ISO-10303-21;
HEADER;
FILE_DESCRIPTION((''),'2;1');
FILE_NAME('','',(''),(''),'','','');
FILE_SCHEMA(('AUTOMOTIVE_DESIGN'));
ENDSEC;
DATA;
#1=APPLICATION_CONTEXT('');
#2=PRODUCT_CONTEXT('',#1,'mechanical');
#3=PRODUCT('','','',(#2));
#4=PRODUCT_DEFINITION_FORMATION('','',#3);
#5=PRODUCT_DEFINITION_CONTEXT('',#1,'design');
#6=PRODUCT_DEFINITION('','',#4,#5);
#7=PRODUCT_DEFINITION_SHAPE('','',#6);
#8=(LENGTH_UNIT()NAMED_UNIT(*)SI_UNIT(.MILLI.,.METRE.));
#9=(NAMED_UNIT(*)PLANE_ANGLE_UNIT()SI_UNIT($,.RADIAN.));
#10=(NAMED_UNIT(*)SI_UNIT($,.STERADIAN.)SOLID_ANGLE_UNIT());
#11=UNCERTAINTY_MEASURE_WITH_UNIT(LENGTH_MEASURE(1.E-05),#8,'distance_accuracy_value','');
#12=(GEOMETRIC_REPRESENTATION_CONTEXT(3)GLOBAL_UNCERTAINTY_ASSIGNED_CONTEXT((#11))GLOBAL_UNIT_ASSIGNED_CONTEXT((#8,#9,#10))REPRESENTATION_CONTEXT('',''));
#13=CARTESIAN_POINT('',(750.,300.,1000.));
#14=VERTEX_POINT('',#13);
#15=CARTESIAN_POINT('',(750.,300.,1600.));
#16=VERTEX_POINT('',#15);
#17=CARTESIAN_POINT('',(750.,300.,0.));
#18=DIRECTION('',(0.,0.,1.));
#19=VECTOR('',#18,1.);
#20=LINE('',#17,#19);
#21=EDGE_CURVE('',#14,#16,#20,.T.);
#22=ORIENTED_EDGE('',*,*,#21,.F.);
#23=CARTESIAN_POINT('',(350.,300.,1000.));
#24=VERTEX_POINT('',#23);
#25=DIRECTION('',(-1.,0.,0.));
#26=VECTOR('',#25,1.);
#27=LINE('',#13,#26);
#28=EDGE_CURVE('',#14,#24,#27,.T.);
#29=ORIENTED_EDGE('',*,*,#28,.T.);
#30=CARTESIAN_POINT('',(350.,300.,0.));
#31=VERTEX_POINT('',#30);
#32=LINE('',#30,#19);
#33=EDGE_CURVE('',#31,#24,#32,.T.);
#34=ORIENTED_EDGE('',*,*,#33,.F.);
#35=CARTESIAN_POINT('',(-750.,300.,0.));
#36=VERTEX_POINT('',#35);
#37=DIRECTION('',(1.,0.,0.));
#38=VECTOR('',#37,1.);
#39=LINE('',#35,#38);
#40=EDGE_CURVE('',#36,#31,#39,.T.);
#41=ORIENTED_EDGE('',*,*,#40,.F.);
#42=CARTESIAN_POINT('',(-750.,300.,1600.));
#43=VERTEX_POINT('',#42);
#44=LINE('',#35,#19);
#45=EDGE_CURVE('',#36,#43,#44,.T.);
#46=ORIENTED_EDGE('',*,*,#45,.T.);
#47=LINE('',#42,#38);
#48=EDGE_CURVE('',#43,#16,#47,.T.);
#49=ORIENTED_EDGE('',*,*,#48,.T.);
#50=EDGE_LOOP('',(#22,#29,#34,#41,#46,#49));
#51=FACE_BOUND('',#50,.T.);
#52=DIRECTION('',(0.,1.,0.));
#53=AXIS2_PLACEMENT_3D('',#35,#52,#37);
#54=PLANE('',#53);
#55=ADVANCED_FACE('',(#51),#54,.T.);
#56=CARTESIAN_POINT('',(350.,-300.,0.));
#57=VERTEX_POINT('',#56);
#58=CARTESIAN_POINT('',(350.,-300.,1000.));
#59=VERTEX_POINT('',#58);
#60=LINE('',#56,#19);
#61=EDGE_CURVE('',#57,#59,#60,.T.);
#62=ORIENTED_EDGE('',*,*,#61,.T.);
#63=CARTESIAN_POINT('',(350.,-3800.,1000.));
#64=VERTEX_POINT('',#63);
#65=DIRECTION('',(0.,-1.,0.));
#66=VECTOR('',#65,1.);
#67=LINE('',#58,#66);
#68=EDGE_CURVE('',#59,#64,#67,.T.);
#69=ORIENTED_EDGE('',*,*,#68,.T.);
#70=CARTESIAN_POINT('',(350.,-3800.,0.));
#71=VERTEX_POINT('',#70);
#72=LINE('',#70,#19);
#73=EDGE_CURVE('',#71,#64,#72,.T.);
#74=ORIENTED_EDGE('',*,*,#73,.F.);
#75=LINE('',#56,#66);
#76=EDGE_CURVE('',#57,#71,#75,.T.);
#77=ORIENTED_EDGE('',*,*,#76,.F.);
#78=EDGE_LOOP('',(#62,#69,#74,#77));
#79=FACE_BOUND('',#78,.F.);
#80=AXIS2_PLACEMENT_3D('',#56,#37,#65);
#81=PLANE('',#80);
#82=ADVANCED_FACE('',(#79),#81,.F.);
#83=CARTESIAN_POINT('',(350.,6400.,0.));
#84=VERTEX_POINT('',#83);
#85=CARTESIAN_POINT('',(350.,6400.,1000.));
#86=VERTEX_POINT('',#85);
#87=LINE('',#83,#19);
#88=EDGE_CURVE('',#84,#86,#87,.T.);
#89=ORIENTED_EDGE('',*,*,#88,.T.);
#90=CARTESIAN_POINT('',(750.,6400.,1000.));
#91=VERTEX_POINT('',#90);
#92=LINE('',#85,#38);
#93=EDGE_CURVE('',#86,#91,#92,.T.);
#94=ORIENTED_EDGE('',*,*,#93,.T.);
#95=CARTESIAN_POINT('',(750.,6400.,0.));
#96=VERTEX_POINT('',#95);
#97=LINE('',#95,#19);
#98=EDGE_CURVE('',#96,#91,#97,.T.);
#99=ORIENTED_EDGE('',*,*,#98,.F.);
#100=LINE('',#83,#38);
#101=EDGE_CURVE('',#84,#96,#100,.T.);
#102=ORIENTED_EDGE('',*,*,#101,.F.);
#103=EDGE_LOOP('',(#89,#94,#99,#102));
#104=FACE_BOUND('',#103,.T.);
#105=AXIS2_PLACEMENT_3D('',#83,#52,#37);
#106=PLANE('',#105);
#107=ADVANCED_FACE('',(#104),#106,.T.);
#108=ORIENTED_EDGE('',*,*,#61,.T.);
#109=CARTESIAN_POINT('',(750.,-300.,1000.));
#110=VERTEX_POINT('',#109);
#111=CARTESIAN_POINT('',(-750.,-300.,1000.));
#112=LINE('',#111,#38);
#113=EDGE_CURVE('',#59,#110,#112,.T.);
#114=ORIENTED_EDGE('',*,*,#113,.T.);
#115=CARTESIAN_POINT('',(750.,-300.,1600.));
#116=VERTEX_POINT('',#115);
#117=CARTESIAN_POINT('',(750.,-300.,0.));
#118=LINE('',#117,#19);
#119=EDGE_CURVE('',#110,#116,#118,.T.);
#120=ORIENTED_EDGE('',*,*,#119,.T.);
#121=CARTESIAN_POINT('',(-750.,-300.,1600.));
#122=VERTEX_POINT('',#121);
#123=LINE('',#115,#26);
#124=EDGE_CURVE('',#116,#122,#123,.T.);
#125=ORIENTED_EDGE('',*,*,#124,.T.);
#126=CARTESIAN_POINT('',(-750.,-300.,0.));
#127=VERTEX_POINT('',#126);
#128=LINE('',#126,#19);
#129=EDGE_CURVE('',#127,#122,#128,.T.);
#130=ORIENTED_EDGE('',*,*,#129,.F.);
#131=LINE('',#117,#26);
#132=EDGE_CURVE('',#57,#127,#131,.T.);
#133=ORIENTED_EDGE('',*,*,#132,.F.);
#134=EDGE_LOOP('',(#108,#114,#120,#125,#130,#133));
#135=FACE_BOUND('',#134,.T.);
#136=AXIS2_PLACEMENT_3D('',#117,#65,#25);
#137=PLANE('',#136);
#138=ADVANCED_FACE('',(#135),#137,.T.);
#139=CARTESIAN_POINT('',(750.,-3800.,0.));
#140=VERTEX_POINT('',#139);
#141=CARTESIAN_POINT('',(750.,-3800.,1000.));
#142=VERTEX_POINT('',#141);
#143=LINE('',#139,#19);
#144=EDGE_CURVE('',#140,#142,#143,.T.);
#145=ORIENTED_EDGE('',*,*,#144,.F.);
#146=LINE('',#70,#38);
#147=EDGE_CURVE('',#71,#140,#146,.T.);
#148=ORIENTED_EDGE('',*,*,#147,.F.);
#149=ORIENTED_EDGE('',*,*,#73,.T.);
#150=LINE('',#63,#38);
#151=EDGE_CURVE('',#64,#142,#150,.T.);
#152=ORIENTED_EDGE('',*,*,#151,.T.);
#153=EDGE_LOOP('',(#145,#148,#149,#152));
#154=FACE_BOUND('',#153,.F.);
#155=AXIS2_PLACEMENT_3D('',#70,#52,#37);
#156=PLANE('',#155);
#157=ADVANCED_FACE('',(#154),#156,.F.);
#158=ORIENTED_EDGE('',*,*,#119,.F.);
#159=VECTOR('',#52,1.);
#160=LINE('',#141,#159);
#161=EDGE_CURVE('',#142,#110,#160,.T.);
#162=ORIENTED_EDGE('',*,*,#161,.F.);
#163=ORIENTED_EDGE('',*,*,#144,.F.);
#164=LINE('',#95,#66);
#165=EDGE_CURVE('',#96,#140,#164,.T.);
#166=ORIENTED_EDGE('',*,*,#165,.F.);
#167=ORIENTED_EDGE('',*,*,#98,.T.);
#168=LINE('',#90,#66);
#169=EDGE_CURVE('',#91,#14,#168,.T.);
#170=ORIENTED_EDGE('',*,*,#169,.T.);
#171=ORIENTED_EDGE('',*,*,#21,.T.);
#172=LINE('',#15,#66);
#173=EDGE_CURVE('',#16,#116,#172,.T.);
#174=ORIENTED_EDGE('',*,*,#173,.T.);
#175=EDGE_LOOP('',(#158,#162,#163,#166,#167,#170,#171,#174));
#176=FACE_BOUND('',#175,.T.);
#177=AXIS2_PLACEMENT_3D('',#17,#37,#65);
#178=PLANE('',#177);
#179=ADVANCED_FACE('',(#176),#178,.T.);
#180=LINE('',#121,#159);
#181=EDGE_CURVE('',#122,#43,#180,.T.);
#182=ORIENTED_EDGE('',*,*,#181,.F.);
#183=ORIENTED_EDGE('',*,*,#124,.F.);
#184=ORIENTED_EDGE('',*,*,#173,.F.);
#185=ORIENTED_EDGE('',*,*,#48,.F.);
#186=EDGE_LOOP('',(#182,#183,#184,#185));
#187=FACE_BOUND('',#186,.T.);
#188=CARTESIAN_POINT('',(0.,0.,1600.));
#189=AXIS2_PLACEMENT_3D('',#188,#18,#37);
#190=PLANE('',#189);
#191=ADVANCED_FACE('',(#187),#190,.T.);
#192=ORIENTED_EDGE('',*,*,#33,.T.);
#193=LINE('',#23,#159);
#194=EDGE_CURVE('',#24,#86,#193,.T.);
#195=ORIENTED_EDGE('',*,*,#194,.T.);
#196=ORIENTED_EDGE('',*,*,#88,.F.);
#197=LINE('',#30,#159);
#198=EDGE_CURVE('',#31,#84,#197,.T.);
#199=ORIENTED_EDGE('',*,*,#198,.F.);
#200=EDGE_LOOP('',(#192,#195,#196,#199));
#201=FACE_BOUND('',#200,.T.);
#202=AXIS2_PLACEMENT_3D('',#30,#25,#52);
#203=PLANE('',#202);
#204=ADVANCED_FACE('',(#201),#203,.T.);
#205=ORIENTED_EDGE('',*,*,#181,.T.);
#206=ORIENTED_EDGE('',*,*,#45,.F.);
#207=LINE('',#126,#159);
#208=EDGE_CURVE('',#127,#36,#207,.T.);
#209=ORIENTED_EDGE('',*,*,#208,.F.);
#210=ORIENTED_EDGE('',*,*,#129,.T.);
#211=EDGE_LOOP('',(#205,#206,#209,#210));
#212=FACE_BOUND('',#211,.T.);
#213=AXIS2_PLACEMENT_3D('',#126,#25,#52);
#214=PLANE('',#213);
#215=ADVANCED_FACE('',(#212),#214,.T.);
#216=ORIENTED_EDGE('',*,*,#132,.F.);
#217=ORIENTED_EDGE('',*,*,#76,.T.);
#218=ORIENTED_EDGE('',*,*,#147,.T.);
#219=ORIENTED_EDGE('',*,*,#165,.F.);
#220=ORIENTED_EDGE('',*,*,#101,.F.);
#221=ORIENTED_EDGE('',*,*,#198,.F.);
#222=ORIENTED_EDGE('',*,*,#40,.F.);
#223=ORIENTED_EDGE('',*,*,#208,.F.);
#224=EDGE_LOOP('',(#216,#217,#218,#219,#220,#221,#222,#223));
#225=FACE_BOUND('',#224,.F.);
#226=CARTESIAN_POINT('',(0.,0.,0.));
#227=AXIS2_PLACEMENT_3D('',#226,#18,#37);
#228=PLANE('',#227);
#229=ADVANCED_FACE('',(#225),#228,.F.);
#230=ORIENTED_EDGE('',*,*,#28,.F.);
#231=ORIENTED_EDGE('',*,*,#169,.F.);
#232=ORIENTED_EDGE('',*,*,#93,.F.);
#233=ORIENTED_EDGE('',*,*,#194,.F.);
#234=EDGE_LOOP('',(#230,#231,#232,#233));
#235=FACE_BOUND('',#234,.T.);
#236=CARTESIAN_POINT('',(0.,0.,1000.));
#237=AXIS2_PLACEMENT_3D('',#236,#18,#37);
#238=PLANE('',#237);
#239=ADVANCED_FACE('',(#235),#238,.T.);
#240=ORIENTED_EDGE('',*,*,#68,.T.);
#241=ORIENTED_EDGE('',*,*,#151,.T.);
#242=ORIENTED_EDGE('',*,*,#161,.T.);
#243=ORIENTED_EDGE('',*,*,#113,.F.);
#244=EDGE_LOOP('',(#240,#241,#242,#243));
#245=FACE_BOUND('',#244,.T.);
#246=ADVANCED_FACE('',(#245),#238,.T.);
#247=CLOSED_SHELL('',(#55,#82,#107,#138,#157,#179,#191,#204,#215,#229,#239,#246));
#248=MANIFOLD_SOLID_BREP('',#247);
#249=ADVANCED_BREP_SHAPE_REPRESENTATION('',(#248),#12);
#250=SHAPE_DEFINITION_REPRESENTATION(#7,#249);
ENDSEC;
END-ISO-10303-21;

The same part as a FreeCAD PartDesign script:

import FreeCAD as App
import Part
import Sketcher

V = App.Vector
Q = App.Units.Quantity


def add_polygon(sketch, points):
    """Adds a closed chain of lines whose ends are joined by coincident constraints."""
    first, n = sketch.GeometryCount, len(points)
    for a, b in zip(points, points[1:] + points[:1]):
        sketch.addGeometry(Part.LineSegment(App.Vector(*a, 0), App.Vector(*b, 0)), False)
    for i in range(n):
        sketch.addConstraint(Sketcher.Constraint("Coincident", first + i, 2, first + (i + 1) % n, 1))

doc = App.newDocument("Part")
params = doc.addObject("Spreadsheet::Sheet", "Params")
for row, (alias, value) in enumerate([
    ("sketch1_width", "1500 mm"),
    ("sketch1_height", "600 mm"),
    ("pad1_length", "1600 mm"),
    ("sketch2_width", "400 mm"),
    ("sketch2_height", "3500 mm"),
    ("sketch2_height2", "6100 mm"),
    ("pad2_length", "1000 mm"),
], start=1):
    params.set(f"A{row}", alias)
    params.set(f"B{row}", "=" + value)
    params.setAlias(f"B{row}", alias)

body = doc.addObject("PartDesign::Body", "Body")

# Sketch on XY plane
sketch1 = body.newObject("Sketcher::SketchObject", "Sketch")
sketch1.AttachmentSupport = (doc.getObject("XY_Plane"), [""])
sketch1.MapMode = "FlatFace"
add_polygon(sketch1, [(750, 300), (-750, 300), (-750, -300), (750, -300)])  # lines 0-3
sketch1.addConstraint([
    Sketcher.Constraint("Horizontal", 0),
    Sketcher.Constraint("Vertical", 1),
    Sketcher.Constraint("Horizontal", 2),
    Sketcher.Constraint("Vertical", 3),
    Sketcher.Constraint("Symmetric", 0, 2, 2, 2, -1, 1),
    Sketcher.Constraint("DistanceX", 0, 2, 0, 1, Q("1500 mm")),
    Sketcher.Constraint("DistanceY", 1, 2, 1, 1, Q("600 mm")),
])
sketch1.setExpression("Constraints[9]", "Params.sketch1_width")
sketch1.setExpression("Constraints[10]", "Params.sketch1_height")
pad1 = body.newObject("PartDesign::Pad", "Pad")
pad1.Profile = sketch1
pad1.setExpression("Length", "Params.pad1_length")

# Sketch on XY plane
sketch2 = body.newObject("Sketcher::SketchObject", "Sketch001")
sketch2.AttachmentSupport = (doc.getObject("XY_Plane"), [""])
sketch2.MapMode = "FlatFace"
add_polygon(sketch2, [(750, -300), (350, -300), (350, -3800), (750, -3800)])  # lines 0-3
add_polygon(sketch2, [(350, 6400), (350, 300), (750, 300), (750, 6400)])  # lines 4-7
sketch2.addConstraint([
    Sketcher.Constraint("Horizontal", 0),
    Sketcher.Constraint("Vertical", 1),
    Sketcher.Constraint("Horizontal", 2),
    Sketcher.Constraint("Vertical", 3),
    Sketcher.Constraint("Vertical", 4),
    Sketcher.Constraint("Horizontal", 5),
    Sketcher.Constraint("Vertical", 6),
    Sketcher.Constraint("Horizontal", 7),
    Sketcher.Constraint("Symmetric", 0, 2, 4, 2, -1),
    Sketcher.Constraint("Vertical", 3, 2, 5, 2),
    Sketcher.Constraint("DistanceX", 0, 2, 0, 1, Q("400 mm")),
    Sketcher.Constraint("DistanceY", 1, 2, 1, 1, Q("3500 mm")),
    Sketcher.Constraint("DistanceY", 4, 2, 4, 1, Q("6100 mm")),
    Sketcher.Constraint("DistanceX", -1, 1, 0, 2, Q("350 mm")),
    Sketcher.Constraint("DistanceY", 0, 2, -1, 1, Q("300 mm")),
])
sketch2.setExpression("Constraints[18]", "Params.sketch2_width")
sketch2.setExpression("Constraints[19]", "Params.sketch2_height")
sketch2.setExpression("Constraints[20]", "Params.sketch2_height2")
pad2 = body.newObject("PartDesign::Pad", "Pad001")
pad2.Profile = sketch2
pad2.setExpression("Length", "Params.pad2_length")

doc.recompute()
